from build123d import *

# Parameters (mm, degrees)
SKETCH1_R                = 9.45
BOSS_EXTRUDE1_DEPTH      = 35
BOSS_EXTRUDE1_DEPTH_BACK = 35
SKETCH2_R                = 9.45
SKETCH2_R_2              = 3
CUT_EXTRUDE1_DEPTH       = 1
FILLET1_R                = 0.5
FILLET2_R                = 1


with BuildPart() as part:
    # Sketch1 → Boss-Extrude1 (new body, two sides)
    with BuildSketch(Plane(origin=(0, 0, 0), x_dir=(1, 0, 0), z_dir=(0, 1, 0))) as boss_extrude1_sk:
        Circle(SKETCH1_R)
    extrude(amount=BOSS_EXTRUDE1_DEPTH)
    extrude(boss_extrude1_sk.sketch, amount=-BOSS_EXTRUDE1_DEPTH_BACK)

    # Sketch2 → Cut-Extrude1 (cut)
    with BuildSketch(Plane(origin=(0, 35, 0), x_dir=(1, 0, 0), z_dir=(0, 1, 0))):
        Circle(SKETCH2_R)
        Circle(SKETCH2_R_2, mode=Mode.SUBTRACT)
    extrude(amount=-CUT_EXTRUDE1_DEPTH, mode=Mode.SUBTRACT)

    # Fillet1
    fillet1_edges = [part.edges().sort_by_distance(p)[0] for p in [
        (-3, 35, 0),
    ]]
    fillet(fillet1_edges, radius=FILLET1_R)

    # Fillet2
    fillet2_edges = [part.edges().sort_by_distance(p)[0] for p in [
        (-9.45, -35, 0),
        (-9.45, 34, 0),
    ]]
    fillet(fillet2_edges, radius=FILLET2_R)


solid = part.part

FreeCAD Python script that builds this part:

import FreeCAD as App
import Part
import Sketcher
from FreeCAD import Vector
Q = App.Units.Quantity


def edges_at(feature, points):
    """Names of the edges that pass closest to the given points."""
    edges = feature.Shape.Edges
    near = lambda p: min(range(len(edges)), key=lambda i: edges[i].distToShape(Part.Vertex(*p))[0])
    return sorted({f"Edge{near(p) + 1}" for p in points})

doc = App.newDocument("Part")
body = doc.addObject("PartDesign::Body", "Body")

# Sketch on XZ plane
sketch1 = body.newObject("Sketcher::SketchObject", "Sketch")
sketch1.AttachmentSupport = (doc.getObject("XZ_Plane"), [""])
sketch1.MapMode = "FlatFace"
sketch1.addGeometry(Part.Circle(Vector(0, 0, 0), Vector(0, 0, 1), 9), False)
sketch1.addConstraint(Sketcher.Constraint("Coincident", 0, 3, -1, 1))
sketch1.addConstraint(Sketcher.Constraint("Diameter", 0, Q("18.9 mm")))
pad1 = body.newObject("PartDesign::Pad", "Pad")
pad1.Profile = sketch1
pad1.Type = "TwoLengths"
pad1.Length = 35
pad1.Length2 = 35
pad1.Reversed = True

# Sketch on XZ plane
sketch2 = body.newObject("Sketcher::SketchObject", "Sketch001")
sketch2.AttachmentSupport = (doc.getObject("XZ_Plane"), [""])
sketch2.MapMode = "FlatFace"
sketch2.AttachmentOffset = App.Placement(Vector(0, 0, -35), App.Rotation())
sketch2.addGeometry(Part.Circle(Vector(0, 0, 0), Vector(0, 0, 1), 9.4), False)
sketch2.addGeometry(Part.Circle(Vector(0, 0, 0), Vector(0, 0, 1), 3), False)
sketch2.addConstraint(Sketcher.Constraint("Coincident", 0, 3, -1, 1))
sketch2.addConstraint(Sketcher.Constraint("Coincident", 1, 3, -1, 1))
sketch2.addConstraint(Sketcher.Constraint("Diameter", 1, Q("6 mm")))
sketch2.addConstraint(Sketcher.Constraint("Diameter", 0, Q("18.9 mm")))
pocket1 = body.newObject("PartDesign::Pocket", "Pocket")
pocket1.Profile = sketch2
pocket1.Length = 1
pocket1.Reversed = True
doc.recompute()

fillet = body.newObject("PartDesign::Fillet", "Fillet")
fillet.Base = (pocket1, edges_at(pocket1, [(-3, 35, 0)]))
fillet.Radius = 0.5
doc.recompute()

fillet2 = body.newObject("PartDesign::Fillet", "Fillet001")
fillet2.Base = (fillet, edges_at(fillet, [(-9.45, -35, 0), (-9.45, 34, 0)]))
fillet2.Radius = 1

doc.recompute()
